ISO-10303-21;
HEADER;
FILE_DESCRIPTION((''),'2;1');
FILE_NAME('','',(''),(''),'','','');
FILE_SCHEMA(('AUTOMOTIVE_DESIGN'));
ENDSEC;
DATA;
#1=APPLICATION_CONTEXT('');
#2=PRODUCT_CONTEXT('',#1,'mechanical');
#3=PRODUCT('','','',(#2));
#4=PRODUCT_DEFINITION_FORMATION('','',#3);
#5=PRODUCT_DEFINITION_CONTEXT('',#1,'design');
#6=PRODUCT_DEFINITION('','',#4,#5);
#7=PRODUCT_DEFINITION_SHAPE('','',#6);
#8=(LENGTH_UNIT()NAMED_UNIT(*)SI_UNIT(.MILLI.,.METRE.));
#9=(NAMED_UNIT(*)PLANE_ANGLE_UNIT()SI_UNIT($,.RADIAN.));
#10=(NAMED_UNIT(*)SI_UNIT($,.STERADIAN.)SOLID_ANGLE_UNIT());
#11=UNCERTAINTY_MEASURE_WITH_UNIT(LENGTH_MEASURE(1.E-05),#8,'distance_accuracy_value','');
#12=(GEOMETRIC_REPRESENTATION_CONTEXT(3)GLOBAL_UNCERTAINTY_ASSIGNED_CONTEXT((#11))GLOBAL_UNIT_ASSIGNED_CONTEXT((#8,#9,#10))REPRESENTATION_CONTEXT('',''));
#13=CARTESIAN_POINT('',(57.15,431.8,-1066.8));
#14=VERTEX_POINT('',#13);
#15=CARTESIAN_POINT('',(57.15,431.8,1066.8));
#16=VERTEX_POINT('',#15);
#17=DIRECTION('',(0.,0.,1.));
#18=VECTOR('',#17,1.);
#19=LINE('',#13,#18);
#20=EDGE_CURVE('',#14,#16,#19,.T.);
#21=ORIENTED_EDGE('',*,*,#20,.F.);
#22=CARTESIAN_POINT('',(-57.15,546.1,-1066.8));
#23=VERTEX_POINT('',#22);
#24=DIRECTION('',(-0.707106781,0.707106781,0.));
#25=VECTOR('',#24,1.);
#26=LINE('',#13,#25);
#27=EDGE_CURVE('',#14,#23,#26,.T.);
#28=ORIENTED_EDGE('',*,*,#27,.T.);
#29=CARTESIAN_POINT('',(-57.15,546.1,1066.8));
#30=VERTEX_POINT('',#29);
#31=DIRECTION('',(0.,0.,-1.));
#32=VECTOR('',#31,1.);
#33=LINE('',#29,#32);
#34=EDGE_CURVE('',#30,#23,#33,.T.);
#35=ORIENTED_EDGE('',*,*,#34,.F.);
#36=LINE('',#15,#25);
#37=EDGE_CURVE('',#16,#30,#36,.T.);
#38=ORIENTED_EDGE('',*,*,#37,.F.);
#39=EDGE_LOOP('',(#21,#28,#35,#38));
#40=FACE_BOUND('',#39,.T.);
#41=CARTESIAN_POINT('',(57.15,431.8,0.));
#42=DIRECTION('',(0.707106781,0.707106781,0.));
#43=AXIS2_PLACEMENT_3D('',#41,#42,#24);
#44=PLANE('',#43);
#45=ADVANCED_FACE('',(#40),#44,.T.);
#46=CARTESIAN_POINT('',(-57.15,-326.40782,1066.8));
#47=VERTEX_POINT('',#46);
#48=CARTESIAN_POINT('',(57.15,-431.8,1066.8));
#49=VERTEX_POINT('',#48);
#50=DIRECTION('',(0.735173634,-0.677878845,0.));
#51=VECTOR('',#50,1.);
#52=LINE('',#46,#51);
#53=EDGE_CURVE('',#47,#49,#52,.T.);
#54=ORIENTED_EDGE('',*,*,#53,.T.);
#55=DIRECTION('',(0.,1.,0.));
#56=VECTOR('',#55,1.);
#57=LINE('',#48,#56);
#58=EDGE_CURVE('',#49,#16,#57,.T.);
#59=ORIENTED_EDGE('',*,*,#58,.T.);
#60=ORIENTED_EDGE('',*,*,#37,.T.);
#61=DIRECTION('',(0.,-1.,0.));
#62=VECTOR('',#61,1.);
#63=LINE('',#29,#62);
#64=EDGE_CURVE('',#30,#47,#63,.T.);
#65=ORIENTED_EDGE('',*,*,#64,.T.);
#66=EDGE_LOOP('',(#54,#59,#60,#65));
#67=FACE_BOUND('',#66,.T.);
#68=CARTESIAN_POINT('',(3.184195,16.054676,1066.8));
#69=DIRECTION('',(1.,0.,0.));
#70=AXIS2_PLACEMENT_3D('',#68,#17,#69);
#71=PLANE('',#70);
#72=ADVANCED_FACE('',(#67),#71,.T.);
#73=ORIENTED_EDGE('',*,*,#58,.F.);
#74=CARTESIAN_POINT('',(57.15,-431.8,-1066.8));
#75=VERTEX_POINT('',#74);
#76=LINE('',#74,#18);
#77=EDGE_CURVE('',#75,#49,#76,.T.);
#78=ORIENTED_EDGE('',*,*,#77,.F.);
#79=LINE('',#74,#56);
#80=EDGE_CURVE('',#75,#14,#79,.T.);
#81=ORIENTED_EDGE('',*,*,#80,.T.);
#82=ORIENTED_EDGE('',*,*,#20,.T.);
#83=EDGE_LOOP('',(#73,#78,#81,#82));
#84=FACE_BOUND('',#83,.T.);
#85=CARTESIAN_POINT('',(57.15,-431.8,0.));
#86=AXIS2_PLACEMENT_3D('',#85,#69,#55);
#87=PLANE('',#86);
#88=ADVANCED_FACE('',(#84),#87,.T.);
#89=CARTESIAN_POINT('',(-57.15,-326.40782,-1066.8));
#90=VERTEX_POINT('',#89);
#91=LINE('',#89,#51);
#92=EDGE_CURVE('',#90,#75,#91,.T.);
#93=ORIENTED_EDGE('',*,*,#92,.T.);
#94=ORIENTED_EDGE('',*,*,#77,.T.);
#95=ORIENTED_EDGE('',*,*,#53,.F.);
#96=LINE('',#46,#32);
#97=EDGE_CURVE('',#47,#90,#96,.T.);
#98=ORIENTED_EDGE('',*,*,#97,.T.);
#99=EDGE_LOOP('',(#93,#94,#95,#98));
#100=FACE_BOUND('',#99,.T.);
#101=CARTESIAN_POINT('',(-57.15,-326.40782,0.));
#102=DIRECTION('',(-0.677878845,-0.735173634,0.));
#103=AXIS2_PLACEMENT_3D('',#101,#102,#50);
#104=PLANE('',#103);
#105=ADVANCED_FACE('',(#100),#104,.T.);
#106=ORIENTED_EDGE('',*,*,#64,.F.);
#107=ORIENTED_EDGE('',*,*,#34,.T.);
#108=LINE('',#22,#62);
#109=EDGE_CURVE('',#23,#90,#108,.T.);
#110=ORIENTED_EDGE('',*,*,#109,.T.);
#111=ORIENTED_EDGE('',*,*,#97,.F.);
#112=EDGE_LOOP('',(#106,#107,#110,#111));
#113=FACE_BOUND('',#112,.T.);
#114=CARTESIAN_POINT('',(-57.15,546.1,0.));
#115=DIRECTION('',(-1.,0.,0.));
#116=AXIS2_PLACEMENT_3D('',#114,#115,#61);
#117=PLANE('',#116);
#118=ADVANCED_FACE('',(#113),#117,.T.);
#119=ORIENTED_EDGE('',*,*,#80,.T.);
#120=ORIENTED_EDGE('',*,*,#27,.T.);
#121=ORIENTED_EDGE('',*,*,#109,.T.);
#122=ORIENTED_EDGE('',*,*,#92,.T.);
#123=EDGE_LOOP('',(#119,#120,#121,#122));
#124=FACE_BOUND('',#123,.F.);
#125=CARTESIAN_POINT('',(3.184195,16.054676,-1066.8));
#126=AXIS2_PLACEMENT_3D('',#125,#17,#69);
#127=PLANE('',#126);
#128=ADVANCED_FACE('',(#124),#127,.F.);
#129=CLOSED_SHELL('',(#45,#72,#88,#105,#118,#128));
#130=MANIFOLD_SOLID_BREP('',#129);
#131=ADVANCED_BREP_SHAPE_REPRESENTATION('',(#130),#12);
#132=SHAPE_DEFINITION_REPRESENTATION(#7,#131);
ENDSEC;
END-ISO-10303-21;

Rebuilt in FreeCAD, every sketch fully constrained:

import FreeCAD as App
import Part
import Sketcher

V = App.Vector
Q = App.Units.Quantity


def add_polygon(sketch, points):
    """Adds a closed chain of lines whose ends are joined by coincident constraints."""
    first, n = sketch.GeometryCount, len(points)
    for a, b in zip(points, points[1:] + points[:1]):
        sketch.addGeometry(Part.LineSegment(App.Vector(*a, 0), App.Vector(*b, 0)), False)
    for i in range(n):
        sketch.addConstraint(Sketcher.Constraint("Coincident", first + i, 2, first + (i + 1) % n, 1))

doc = App.newDocument("Part")
body = doc.addObject("PartDesign::Body", "Body")

sketch1 = body.newObject("Sketcher::SketchObject", "Sketch")
sketch1.AttachmentSupport = (doc.getObject("XY_Plane"), [""])
sketch1.MapMode = "FlatFace"
add_polygon(sketch1, [(-57, -326), (57, -432), (57, 432), (-57, 546)])
sketch1.addConstraint(Sketcher.Constraint("Vertical", 1))
sketch1.addConstraint(Sketcher.Constraint("Vertical", 3))
sketch1.addConstraint(Sketcher.Constraint("DistanceY", 1, 1, 1, 2, Q("34 in")))
sketch1.addConstraint(Sketcher.Constraint("DistanceY", 0, 2, -1, 1, Q("17 in")))
sketch1.addConstraint(Sketcher.Constraint("Angle", 2, Q("135 deg")))
sketch1.addConstraint(Sketcher.Constraint("DistanceY", -1, 1, 2, 2, Q("21.5 in")))
sketch1.addConstraint(Sketcher.Constraint("DistanceX", -1, 1, 0, 2, Q("2.25 in")))
sketch1.addConstraint(Sketcher.Constraint("DistanceY", 3, 2, 3, 1, Q("872.50782 mm")))
pad1 = body.newObject("PartDesign::Pad", "Pad")
pad1.Profile = sketch1
pad1.Length = Q("84 in")
pad1.Midplane = True

doc.recompute()
